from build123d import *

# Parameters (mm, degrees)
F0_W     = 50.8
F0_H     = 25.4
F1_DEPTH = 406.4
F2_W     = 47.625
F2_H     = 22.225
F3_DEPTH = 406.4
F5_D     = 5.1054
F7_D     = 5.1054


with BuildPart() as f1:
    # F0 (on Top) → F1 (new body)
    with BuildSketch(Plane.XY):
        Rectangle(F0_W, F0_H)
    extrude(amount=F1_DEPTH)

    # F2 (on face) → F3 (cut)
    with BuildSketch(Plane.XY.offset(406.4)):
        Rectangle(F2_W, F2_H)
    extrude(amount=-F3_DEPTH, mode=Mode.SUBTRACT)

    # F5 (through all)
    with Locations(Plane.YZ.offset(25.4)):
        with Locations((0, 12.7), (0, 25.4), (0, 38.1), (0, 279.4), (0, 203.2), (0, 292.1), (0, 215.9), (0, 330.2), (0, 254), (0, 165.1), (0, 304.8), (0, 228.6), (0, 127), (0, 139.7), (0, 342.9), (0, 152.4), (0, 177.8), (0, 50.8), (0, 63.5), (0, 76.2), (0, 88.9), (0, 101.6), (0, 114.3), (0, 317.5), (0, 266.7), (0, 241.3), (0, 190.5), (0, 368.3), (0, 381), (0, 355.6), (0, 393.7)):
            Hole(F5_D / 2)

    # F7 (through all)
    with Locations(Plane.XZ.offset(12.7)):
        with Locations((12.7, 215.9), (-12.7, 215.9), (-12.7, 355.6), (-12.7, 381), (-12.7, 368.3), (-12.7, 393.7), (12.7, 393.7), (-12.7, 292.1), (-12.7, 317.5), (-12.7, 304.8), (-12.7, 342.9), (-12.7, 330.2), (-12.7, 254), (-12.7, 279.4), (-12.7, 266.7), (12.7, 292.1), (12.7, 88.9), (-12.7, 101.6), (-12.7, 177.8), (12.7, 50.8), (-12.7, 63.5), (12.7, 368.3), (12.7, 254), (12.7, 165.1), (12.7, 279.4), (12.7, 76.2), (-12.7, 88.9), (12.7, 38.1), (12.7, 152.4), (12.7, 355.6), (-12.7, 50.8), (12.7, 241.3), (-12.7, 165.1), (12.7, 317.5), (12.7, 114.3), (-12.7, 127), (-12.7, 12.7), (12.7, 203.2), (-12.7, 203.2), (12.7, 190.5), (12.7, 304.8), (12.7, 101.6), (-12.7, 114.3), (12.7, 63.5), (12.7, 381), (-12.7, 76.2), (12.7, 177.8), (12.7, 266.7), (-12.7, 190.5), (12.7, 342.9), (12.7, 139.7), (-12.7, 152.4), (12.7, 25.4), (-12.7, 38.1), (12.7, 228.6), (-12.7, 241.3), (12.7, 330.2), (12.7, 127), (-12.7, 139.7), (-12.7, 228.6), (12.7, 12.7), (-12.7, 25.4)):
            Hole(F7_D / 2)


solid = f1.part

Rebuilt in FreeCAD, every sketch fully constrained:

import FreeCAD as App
import Part
import Sketcher
from FreeCAD import Vector
Q = App.Units.Quantity

doc = App.newDocument("Part")
body = doc.addObject("PartDesign::Body", "Body")

# Sketch on XY plane
sketch1 = doc.addObject("Sketcher::SketchObject", "Sketch")
body.addObject(sketch1)
sketch1.AttachmentSupport = (doc.XY_Plane, [""])
sketch1.MapMode = "FlatFace"
sketch1.addGeometry(Part.LineSegment(Vector(-25.4, 12.7, 0), Vector(-25.4, -12.7, 0)), False)
sketch1.addGeometry(Part.LineSegment(Vector(-25.4, -12.7, 0), Vector(25.4, -12.7, 0)), False)
sketch1.addGeometry(Part.LineSegment(Vector(25.4, -12.7, 0), Vector(25.4, 12.7, 0)), False)
sketch1.addGeometry(Part.LineSegment(Vector(25.4, 12.7, 0), Vector(-25.4, 12.7, 0)), False)
sketch1.addConstraint(Sketcher.Constraint("Coincident", 0, 2, 1, 1))
sketch1.addConstraint(Sketcher.Constraint("Coincident", 1, 2, 2, 1))
sketch1.addConstraint(Sketcher.Constraint("Coincident", 2, 2, 3, 1))
sketch1.addConstraint(Sketcher.Constraint("Coincident", 3, 2, 0, 1))
sketch1.addConstraint(Sketcher.Constraint("Vertical", 0))
sketch1.addConstraint(Sketcher.Constraint("Horizontal", 1))
sketch1.addConstraint(Sketcher.Constraint("Vertical", 2))
sketch1.addConstraint(Sketcher.Constraint("Horizontal", 3))
sketch1.addConstraint(Sketcher.Constraint("Symmetric", 0, 2, 2, 2, -1, 1))
sketch1.addConstraint(Sketcher.Constraint("DistanceX", 1, 1, 1, 2, Q("2 in")))
sketch1.addConstraint(Sketcher.Constraint("DistanceY", 0, 2, 0, 1, Q("1 in")))
pad1 = doc.addObject("PartDesign::Pad", "Pad")
body.addObject(pad1)
pad1.Profile = sketch1
pad1.Length = Q("16 in")

# Sketch on XY plane
sketch2 = doc.addObject("Sketcher::SketchObject", "Sketch001")
body.addObject(sketch2)
sketch2.AttachmentSupport = (doc.XY_Plane, [""])
sketch2.MapMode = "FlatFace"
sketch2.AttachmentOffset = App.Placement(Vector(0, 0, 16 * 25.4), App.Rotation())
sketch2.addGeometry(Part.LineSegment(Vector(-23.8125, 11.1125, 0), Vector(-23.8125, -11.1125, 0)), False)
sketch2.addGeometry(Part.LineSegment(Vector(-23.8125, -11.1125, 0), Vector(23.8125, -11.1125, 0)), False)
sketch2.addGeometry(Part.LineSegment(Vector(23.8125, -11.1125, 0), Vector(23.8125, 11.1125, 0)), False)
sketch2.addGeometry(Part.LineSegment(Vector(23.8125, 11.1125, 0), Vector(-23.8125, 11.1125, 0)), False)
sketch2.addConstraint(Sketcher.Constraint("Coincident", 0, 2, 1, 1))
sketch2.addConstraint(Sketcher.Constraint("Coincident", 1, 2, 2, 1))
sketch2.addConstraint(Sketcher.Constraint("Coincident", 2, 2, 3, 1))
sketch2.addConstraint(Sketcher.Constraint("Coincident", 3, 2, 0, 1))
sketch2.addConstraint(Sketcher.Constraint("Vertical", 0))
sketch2.addConstraint(Sketcher.Constraint("Horizontal", 1))
sketch2.addConstraint(Sketcher.Constraint("Vertical", 2))
sketch2.addConstraint(Sketcher.Constraint("Horizontal", 3))
sketch2.addConstraint(Sketcher.Constraint("Symmetric", 0, 2, 2, 2, -1, 1))
sketch2.addConstraint(Sketcher.Constraint("DistanceX", 1, 1, 1, 2, Q("1.875 in")))
sketch2.addConstraint(Sketcher.Constraint("DistanceY", 0, 2, 0, 1, Q("0.875 in")))
pocket1 = doc.addObject("PartDesign::Pocket", "Pocket")
body.addObject(pocket1)
pocket1.Profile = sketch2
pocket1.Length = Q("16 in")

# Sketch on YZ plane
sketch3 = doc.addObject("Sketcher::SketchObject", "Sketch002")
body.addObject(sketch3)
sketch3.AttachmentSupport = (doc.YZ_Plane, [""])
sketch3.MapMode = "FlatFace"
sketch3.AttachmentOffset = App.Placement(Vector(0, 0, 1 * 25.4), App.Rotation())
sketch3.addGeometry(Part.Circle(Vector(0, 12.7, 0), Vector(0, 0, 1), 2.5527), False)
sketch3.addGeometry(Part.Circle(Vector(0, 25.4, 0), Vector(0, 0, 1), 2.5527), False)
sketch3.addGeometry(Part.Circle(Vector(0, 38.1, 0), Vector(0, 0, 1), 2.5527), False)
sketch3.addGeometry(Part.Circle(Vector(0, 279.4, 0), Vector(0, 0, 1), 2.5527), False)
sketch3.addGeometry(Part.Circle(Vector(0, 203.2, 0), Vector(0, 0, 1), 2.5527), False)
sketch3.addGeometry(Part.Circle(Vector(0, 292.1, 0), Vector(0, 0, 1), 2.5527), False)
sketch3.addGeometry(Part.Circle(Vector(0, 215.9, 0), Vector(0, 0, 1), 2.5527), False)
sketch3.addGeometry(Part.Circle(Vector(0, 330.2, 0), Vector(0, 0, 1), 2.5527), False)
sketch3.addGeometry(Part.Circle(Vector(0, 254, 0), Vector(0, 0, 1), 2.5527), False)
sketch3.addGeometry(Part.Circle(Vector(0, 165.1, 0), Vector(0, 0, 1), 2.5527), False)
sketch3.addGeometry(Part.Circle(Vector(0, 304.8, 0), Vector(0, 0, 1), 2.5527), False)
sketch3.addGeometry(Part.Circle(Vector(0, 228.6, 0), Vector(0, 0, 1), 2.5527), False)
sketch3.addGeometry(Part.Circle(Vector(0, 127, 0), Vector(0, 0, 1), 2.5527), False)
sketch3.addGeometry(Part.Circle(Vector(0, 139.7, 0), Vector(0, 0, 1), 2.5527), False)
sketch3.addGeometry(Part.Circle(Vector(0, 342.9, 0), Vector(0, 0, 1), 2.5527), False)
sketch3.addGeometry(Part.Circle(Vector(0, 152.4, 0), Vector(0, 0, 1), 2.5527), False)
sketch3.addGeometry(Part.Circle(Vector(0, 177.8, 0), Vector(0, 0, 1), 2.5527), False)
sketch3.addGeometry(Part.Circle(Vector(0, 50.8, 0), Vector(0, 0, 1), 2.5527), False)
sketch3.addGeometry(Part.Circle(Vector(0, 63.5, 0), Vector(0, 0, 1), 2.5527), False)
sketch3.addGeometry(Part.Circle(Vector(0, 76.2, 0), Vector(0, 0, 1), 2.5527), False)
sketch3.addGeometry(Part.Circle(Vector(0, 88.9, 0), Vector(0, 0, 1), 2.5527), False)
sketch3.addGeometry(Part.Circle(Vector(0, 101.6, 0), Vector(0, 0, 1), 2.5527), False)
sketch3.addGeometry(Part.Circle(Vector(0, 114.3, 0), Vector(0, 0, 1), 2.5527), False)
sketch3.addGeometry(Part.Circle(Vector(0, 317.5, 0), Vector(0, 0, 1), 2.5527), False)
sketch3.addGeometry(Part.Circle(Vector(0, 266.7, 0), Vector(0, 0, 1), 2.5527), False)
sketch3.addGeometry(Part.Circle(Vector(0, 241.3, 0), Vector(0, 0, 1), 2.5527), False)
sketch3.addGeometry(Part.Circle(Vector(0, 190.5, 0), Vector(0, 0, 1), 2.5527), False)
sketch3.addGeometry(Part.Circle(Vector(0, 368.3, 0), Vector(0, 0, 1), 2.5527), False)
sketch3.addGeometry(Part.Circle(Vector(0, 381, 0), Vector(0, 0, 1), 2.5527), False)
sketch3.addGeometry(Part.Circle(Vector(0, 355.6, 0), Vector(0, 0, 1), 2.5527), False)
sketch3.addGeometry(Part.Circle(Vector(0, 393.7, 0), Vector(0, 0, 1), 2.5527), False)
sketch3.addConstraint(Sketcher.Constraint("Equal", 0, 1))
sketch3.addConstraint(Sketcher.Constraint("Equal", 1, 2))
sketch3.addConstraint(Sketcher.Constraint("Equal", 2, 3))
sketch3.addConstraint(Sketcher.Constraint("Equal", 3, 4))
sketch3.addConstraint(Sketcher.Constraint("Equal", 4, 5))
sketch3.addConstraint(Sketcher.Constraint("Equal", 5, 6))
sketch3.addConstraint(Sketcher.Constraint("Equal", 6, 7))
sketch3.addConstraint(Sketcher.Constraint("Equal", 7, 8))
sketch3.addConstraint(Sketcher.Constraint("Equal", 8, 9))
sketch3.addConstraint(Sketcher.Constraint("Equal", 9, 10))
sketch3.addConstraint(Sketcher.Constraint("Equal", 10, 11))
sketch3.addConstraint(Sketcher.Constraint("Equal", 11, 12))
sketch3.addConstraint(Sketcher.Constraint("Equal", 12, 13))
sketch3.addConstraint(Sketcher.Constraint("Equal", 13, 14))
sketch3.addConstraint(Sketcher.Constraint("Equal", 14, 15))
sketch3.addConstraint(Sketcher.Constraint("Equal", 15, 16))
sketch3.addConstraint(Sketcher.Constraint("Equal", 16, 17))
sketch3.addConstraint(Sketcher.Constraint("Equal", 17, 18))
sketch3.addConstraint(Sketcher.Constraint("Equal", 18, 19))
sketch3.addConstraint(Sketcher.Constraint("Equal", 19, 20))
sketch3.addConstraint(Sketcher.Constraint("Equal", 20, 21))
sketch3.addConstraint(Sketcher.Constraint("Equal", 21, 22))
sketch3.addConstraint(Sketcher.Constraint("Equal", 22, 23))
sketch3.addConstraint(Sketcher.Constraint("Equal", 23, 24))
sketch3.addConstraint(Sketcher.Constraint("Equal", 24, 25))
sketch3.addConstraint(Sketcher.Constraint("Equal", 25, 26))
sketch3.addConstraint(Sketcher.Constraint("Equal", 26, 27))
sketch3.addConstraint(Sketcher.Constraint("Equal", 27, 28))
sketch3.addConstraint(Sketcher.Constraint("Equal", 28, 29))
sketch3.addConstraint(Sketcher.Constraint("Equal", 29, 30))
sketch3.addConstraint(Sketcher.Constraint("PointOnObject", 0, 3, -2))
sketch3.addConstraint(Sketcher.Constraint("PointOnObject", 1, 3, -2))
sketch3.addConstraint(Sketcher.Constraint("PointOnObject", 2, 3, -2))
sketch3.addConstraint(Sketcher.Constraint("PointOnObject", 3, 3, -2))
sketch3.addConstraint(Sketcher.Constraint("PointOnObject", 4, 3, -2))
sketch3.addConstraint(Sketcher.Constraint("PointOnObject", 5, 3, -2))
sketch3.addConstraint(Sketcher.Constraint("PointOnObject", 6, 3, -2))
sketch3.addConstraint(Sketcher.Constraint("PointOnObject", 7, 3, -2))
sketch3.addConstraint(Sketcher.Constraint("PointOnObject", 8, 3, -2))
sketch3.addConstraint(Sketcher.Constraint("PointOnObject", 9, 3, -2))
sketch3.addConstraint(Sketcher.Constraint("PointOnObject", 10, 3, -2))
sketch3.addConstraint(Sketcher.Constraint("PointOnObject", 11, 3, -2))
sketch3.addConstraint(Sketcher.Constraint("PointOnObject", 12, 3, -2))
sketch3.addConstraint(Sketcher.Constraint("PointOnObject", 13, 3, -2))
sketch3.addConstraint(Sketcher.Constraint("PointOnObject", 14, 3, -2))
sketch3.addConstraint(Sketcher.Constraint("PointOnObject", 15, 3, -2))
sketch3.addConstraint(Sketcher.Constraint("PointOnObject", 16, 3, -2))
sketch3.addConstraint(Sketcher.Constraint("PointOnObject", 17, 3, -2))
sketch3.addConstraint(Sketcher.Constraint("PointOnObject", 18, 3, -2))
sketch3.addConstraint(Sketcher.Constraint("PointOnObject", 19, 3, -2))
sketch3.addConstraint(Sketcher.Constraint("PointOnObject", 20, 3, -2))
sketch3.addConstraint(Sketcher.Constraint("PointOnObject", 21, 3, -2))
sketch3.addConstraint(Sketcher.Constraint("PointOnObject", 22, 3, -2))
sketch3.addConstraint(Sketcher.Constraint("PointOnObject", 23, 3, -2))
sketch3.addConstraint(Sketcher.Constraint("PointOnObject", 24, 3, -2))
sketch3.addConstraint(Sketcher.Constraint("PointOnObject", 25, 3, -2))
sketch3.addConstraint(Sketcher.Constraint("PointOnObject", 26, 3, -2))
sketch3.addConstraint(Sketcher.Constraint("PointOnObject", 27, 3, -2))
sketch3.addConstraint(Sketcher.Constraint("PointOnObject", 28, 3, -2))
sketch3.addConstraint(Sketcher.Constraint("PointOnObject", 29, 3, -2))
sketch3.addConstraint(Sketcher.Constraint("PointOnObject", 30, 3, -2))
sketch3.addConstraint(Sketcher.Constraint("Diameter", 0, Q("0.201 in")))
sketch3.addConstraint(Sketcher.Constraint("DistanceY", -1, 1, 1, 3, Q("1 in")))
sketch3.addConstraint(Sketcher.Constraint("DistanceY", -1, 1, 3, 3, Q("11 in")))
sketch3.addConstraint(Sketcher.Constraint("DistanceY", -1, 1, 4, 3, Q("8 in")))
sketch3.addConstraint(Sketcher.Constraint("DistanceY", -1, 1, 7, 3, Q("13 in")))
sketch3.addConstraint(Sketcher.Constraint("DistanceY", -1, 1, 8, 3, Q("10 in")))
sketch3.addConstraint(Sketcher.Constraint("DistanceY", -1, 1, 10, 3, Q("12 in")))
sketch3.addConstraint(Sketcher.Constraint("DistanceY", -1, 1, 11, 3, Q("9 in")))
sketch3.addConstraint(Sketcher.Constraint("DistanceY", -1, 1, 12, 3, Q("5 in")))
sketch3.addConstraint(Sketcher.Constraint("DistanceY", -1, 1, 15, 3, Q("6 in")))
sketch3.addConstraint(Sketcher.Constraint("DistanceY", -1, 1, 16, 3, Q("7 in")))
sketch3.addConstraint(Sketcher.Constraint("DistanceY", -1, 1, 17, 3, Q("2 in")))
sketch3.addConstraint(Sketcher.Constraint("DistanceY", -1, 1, 19, 3, Q("3 in")))
sketch3.addConstraint(Sketcher.Constraint("DistanceY", -1, 1, 21, 3, Q("4 in")))
sketch3.addConstraint(Sketcher.Constraint("DistanceY", -1, 1, 28, 3, Q("15 in")))
sketch3.addConstraint(Sketcher.Constraint("DistanceY", -1, 1, 29, 3, Q("14 in")))
sketch3.addConstraint(Sketcher.Constraint("DistanceY", 0, 3, 2, 3, Q("1 in")))
sketch3.addConstraint(Sketcher.Constraint("DistanceY", 2, 3, 5, 3, Q("10 in")))
sketch3.addConstraint(Sketcher.Constraint("DistanceY", 6, 3, 5, 3, Q("3 in")))
sketch3.addConstraint(Sketcher.Constraint("DistanceY", 9, 3, 6, 3, Q("2 in")))
sketch3.addConstraint(Sketcher.Constraint("DistanceY", 13, 3, 9, 3, Q("1 in")))
sketch3.addConstraint(Sketcher.Constraint("DistanceY", 5, 3, 14, 3, Q("2 in")))
sketch3.addConstraint(Sketcher.Constraint("DistanceY", 2, 3, 18, 3, Q("1 in")))
sketch3.addConstraint(Sketcher.Constraint("DistanceY", 18, 3, 20, 3, Q("1 in")))
sketch3.addConstraint(Sketcher.Constraint("DistanceY", 22, 3, 13, 3, Q("1 in")))
sketch3.addConstraint(Sketcher.Constraint("DistanceY", 5, 3, 23, 3, Q("1 in")))
sketch3.addConstraint(Sketcher.Constraint("DistanceY", 24, 3, 5, 3, Q("1 in")))
sketch3.addConstraint(Sketcher.Constraint("DistanceY", 25, 3, 24, 3, Q("1 in")))
sketch3.addConstraint(Sketcher.Constraint("DistanceY", 26, 3, 6, 3, Q("1 in")))
sketch3.addConstraint(Sketcher.Constraint("DistanceY", 14, 3, 27, 3, Q("1 in")))
sketch3.addConstraint(Sketcher.Constraint("DistanceY", 27, 3, 30, 3, Q("1 in")))
sketch3.addConstraint(Sketcher.Constraint("DistanceY", -1, 1, 0, 3, Q("0.5 in")))
doc.recompute()
hole = doc.addObject("PartDesign::Hole", "Hole")
body.addObject(hole)
hole.Profile = sketch3
hole.ThreadType = "None"
hole.Diameter = Q("0.201 in")
hole.DepthType = "ThroughAll"

# Sketch on XZ plane
sketch4 = doc.addObject("Sketcher::SketchObject", "Sketch003")
body.addObject(sketch4)
sketch4.AttachmentSupport = (doc.XZ_Plane, [""])
sketch4.MapMode = "FlatFace"
sketch4.AttachmentOffset = App.Placement(Vector(0, 0, 0.5 * 25.4), App.Rotation())
sketch4.addGeometry(Part.Circle(Vector(12.7, 215.9, 0), Vector(0, 0, 1), 2.5527), False)
sketch4.addGeometry(Part.Circle(Vector(-12.7, 215.9, 0), Vector(0, 0, 1), 2.5527), False)
sketch4.addGeometry(Part.Circle(Vector(-12.7, 355.6, 0), Vector(0, 0, 1), 2.5527), False)
sketch4.addGeometry(Part.Circle(Vector(-12.7, 381, 0), Vector(0, 0, 1), 2.5527), False)
sketch4.addGeometry(Part.Circle(Vector(-12.7, 368.3, 0), Vector(0, 0, 1), 2.5527), False)
sketch4.addGeometry(Part.Circle(Vector(-12.7, 393.7, 0), Vector(0, 0, 1), 2.5527), False)
sketch4.addGeometry(Part.Circle(Vector(12.7, 393.7, 0), Vector(0, 0, 1), 2.5527), False)
sketch4.addGeometry(Part.Circle(Vector(-12.7, 292.1, 0), Vector(0, 0, 1), 2.5527), False)
sketch4.addGeometry(Part.Circle(Vector(-12.7, 317.5, 0), Vector(0, 0, 1), 2.5527), False)
sketch4.addGeometry(Part.Circle(Vector(-12.7, 304.8, 0), Vector(0, 0, 1), 2.5527), False)
sketch4.addGeometry(Part.Circle(Vector(-12.7, 342.9, 0), Vector(0, 0, 1), 2.5527), False)
sketch4.addGeometry(Part.Circle(Vector(-12.7, 330.2, 0), Vector(0, 0, 1), 2.5527), False)
sketch4.addGeometry(Part.Circle(Vector(-12.7, 254, 0), Vector(0, 0, 1), 2.5527), False)
sketch4.addGeometry(Part.Circle(Vector(-12.7, 279.4, 0), Vector(0, 0, 1), 2.5527), False)
sketch4.addGeometry(Part.Circle(Vector(-12.7, 266.7, 0), Vector(0, 0, 1), 2.5527), False)
sketch4.addGeometry(Part.Circle(Vector(12.7, 292.1, 0), Vector(0, 0, 1), 2.5527), False)
sketch4.addGeometry(Part.Circle(Vector(12.7, 88.9, 0), Vector(0, 0, 1), 2.5527), False)
sketch4.addGeometry(Part.Circle(Vector(-12.7, 101.6, 0), Vector(0, 0, 1), 2.5527), False)
sketch4.addGeometry(Part.Circle(Vector(-12.7, 177.8, 0), Vector(0, 0, 1), 2.5527), False)
sketch4.addGeometry(Part.Circle(Vector(12.7, 50.8, 0), Vector(0, 0, 1), 2.5527), False)
sketch4.addGeometry(Part.Circle(Vector(-12.7, 63.5, 0), Vector(0, 0, 1), 2.5527), False)
sketch4.addGeometry(Part.Circle(Vector(12.7, 368.3, 0), Vector(0, 0, 1), 2.5527), False)
sketch4.addGeometry(Part.Circle(Vector(12.7, 254, 0), Vector(0, 0, 1), 2.5527), False)
sketch4.addGeometry(Part.Circle(Vector(12.7, 165.1, 0), Vector(0, 0, 1), 2.5527), False)
sketch4.addGeometry(Part.Circle(Vector(12.7, 279.4, 0), Vector(0, 0, 1), 2.5527), False)
sketch4.addGeometry(Part.Circle(Vector(12.7, 76.2, 0), Vector(0, 0, 1), 2.5527), False)
sketch4.addGeometry(Part.Circle(Vector(-12.7, 88.9, 0), Vector(0, 0, 1), 2.5527), False)
sketch4.addGeometry(Part.Circle(Vector(12.7, 38.1, 0), Vector(0, 0, 1), 2.5527), False)
sketch4.addGeometry(Part.Circle(Vector(12.7, 152.4, 0), Vector(0, 0, 1), 2.5527), False)
sketch4.addGeometry(Part.Circle(Vector(12.7, 355.6, 0), Vector(0, 0, 1), 2.5527), False)
sketch4.addGeometry(Part.Circle(Vector(-12.7, 50.8, 0), Vector(0, 0, 1), 2.5527), False)
sketch4.addGeometry(Part.Circle(Vector(12.7, 241.3, 0), Vector(0, 0, 1), 2.5527), False)
sketch4.addGeometry(Part.Circle(Vector(-12.7, 165.1, 0), Vector(0, 0, 1), 2.5527), False)
sketch4.addGeometry(Part.Circle(Vector(12.7, 317.5, 0), Vector(0, 0, 1), 2.5527), False)
sketch4.addGeometry(Part.Circle(Vector(12.7, 114.3, 0), Vector(0, 0, 1), 2.5527), False)
sketch4.addGeometry(Part.Circle(Vector(-12.7, 127, 0), Vector(0, 0, 1), 2.5527), False)
sketch4.addGeometry(Part.Circle(Vector(-12.7, 12.7, 0), Vector(0, 0, 1), 2.5527), False)
sketch4.addGeometry(Part.Circle(Vector(12.7, 203.2, 0), Vector(0, 0, 1), 2.5527), False)
sketch4.addGeometry(Part.Circle(Vector(-12.7, 203.2, 0), Vector(0, 0, 1), 2.5527), False)
sketch4.addGeometry(Part.Circle(Vector(12.7, 190.5, 0), Vector(0, 0, 1), 2.5527), False)
sketch4.addGeometry(Part.Circle(Vector(12.7, 304.8, 0), Vector(0, 0, 1), 2.5527), False)
sketch4.addGeometry(Part.Circle(Vector(12.7, 101.6, 0), Vector(0, 0, 1), 2.5527), False)
sketch4.addGeometry(Part.Circle(Vector(-12.7, 114.3, 0), Vector(0, 0, 1), 2.5527), False)
sketch4.addGeometry(Part.Circle(Vector(12.7, 63.5, 0), Vector(0, 0, 1), 2.5527), False)
sketch4.addGeometry(Part.Circle(Vector(12.7, 381, 0), Vector(0, 0, 1), 2.5527), False)
sketch4.addGeometry(Part.Circle(Vector(-12.7, 76.2, 0), Vector(0, 0, 1), 2.5527), False)
sketch4.addGeometry(Part.Circle(Vector(12.7, 177.8, 0), Vector(0, 0, 1), 2.5527), False)
sketch4.addGeometry(Part.Circle(Vector(12.7, 266.7, 0), Vector(0, 0, 1), 2.5527), False)
sketch4.addGeometry(Part.Circle(Vector(-12.7, 190.5, 0), Vector(0, 0, 1), 2.5527), False)
sketch4.addGeometry(Part.Circle(Vector(12.7, 342.9, 0), Vector(0, 0, 1), 2.5527), False)
sketch4.addGeometry(Part.Circle(Vector(12.7, 139.7, 0), Vector(0, 0, 1), 2.5527), False)
sketch4.addGeometry(Part.Circle(Vector(-12.7, 152.4, 0), Vector(0, 0, 1), 2.5527), False)
sketch4.addGeometry(Part.Circle(Vector(12.7, 25.4, 0), Vector(0, 0, 1), 2.5527), False)
sketch4.addGeometry(Part.Circle(Vector(-12.7, 38.1, 0), Vector(0, 0, 1), 2.5527), False)
sketch4.addGeometry(Part.Circle(Vector(12.7, 228.6, 0), Vector(0, 0, 1), 2.5527), False)
sketch4.addGeometry(Part.Circle(Vector(-12.7, 241.3, 0), Vector(0, 0, 1), 2.5527), False)
sketch4.addGeometry(Part.Circle(Vector(12.7, 330.2, 0), Vector(0, 0, 1), 2.5527), False)
sketch4.addGeometry(Part.Circle(Vector(12.7, 127, 0), Vector(0, 0, 1), 2.5527), False)
sketch4.addGeometry(Part.Circle(Vector(-12.7, 139.7, 0), Vector(0, 0, 1), 2.5527), False)
sketch4.addGeometry(Part.Circle(Vector(-12.7, 228.6, 0), Vector(0, 0, 1), 2.5527), False)
sketch4.addGeometry(Part.Circle(Vector(12.7, 12.7, 0), Vector(0, 0, 1), 2.5527), False)
sketch4.addGeometry(Part.Circle(Vector(-12.7, 25.4, 0), Vector(0, 0, 1), 2.5527), False)
sketch4.addConstraint(Sketcher.Constraint("Equal", 0, 1))
sketch4.addConstraint(Sketcher.Constraint("Equal", 1, 2))
sketch4.addConstraint(Sketcher.Constraint("Equal", 2, 3))
sketch4.addConstraint(Sketcher.Constraint("Equal", 3, 4))
sketch4.addConstraint(Sketcher.Constraint("Equal", 4, 5))
sketch4.addConstraint(Sketcher.Constraint("Equal", 5, 6))
sketch4.addConstraint(Sketcher.Constraint("Equal", 6, 7))
sketch4.addConstraint(Sketcher.Constraint("Equal", 7, 8))
sketch4.addConstraint(Sketcher.Constraint("Equal", 8, 9))
sketch4.addConstraint(Sketcher.Constraint("Equal", 9, 10))
sketch4.addConstraint(Sketcher.Constraint("Equal", 10, 11))
sketch4.addConstraint(Sketcher.Constraint("Equal", 11, 12))
sketch4.addConstraint(Sketcher.Constraint("Equal", 12, 13))
sketch4.addConstraint(Sketcher.Constraint("Equal", 13, 14))
sketch4.addConstraint(Sketcher.Constraint("Equal", 14, 15))
sketch4.addConstraint(Sketcher.Constraint("Equal", 15, 16))
sketch4.addConstraint(Sketcher.Constraint("Equal", 16, 17))
sketch4.addConstraint(Sketcher.Constraint("Equal", 17, 18))
sketch4.addConstraint(Sketcher.Constraint("Equal", 18, 19))
sketch4.addConstraint(Sketcher.Constraint("Equal", 19, 20))
sketch4.addConstraint(Sketcher.Constraint("Equal", 20, 21))
sketch4.addConstraint(Sketcher.Constraint("Equal", 21, 22))
sketch4.addConstraint(Sketcher.Constraint("Equal", 22, 23))
sketch4.addConstraint(Sketcher.Constraint("Equal", 23, 24))
sketch4.addConstraint(Sketcher.Constraint("Equal", 24, 25))
sketch4.addConstraint(Sketcher.Constraint("Equal", 25, 26))
sketch4.addConstraint(Sketcher.Constraint("Equal", 26, 27))
sketch4.addConstraint(Sketcher.Constraint("Equal", 27, 28))
sketch4.addConstraint(Sketcher.Constraint("Equal", 28, 29))
sketch4.addConstraint(Sketcher.Constraint("Equal", 29, 30))
sketch4.addConstraint(Sketcher.Constraint("Equal", 30, 31))
sketch4.addConstraint(Sketcher.Constraint("Equal", 31, 32))
sketch4.addConstraint(Sketcher.Constraint("Equal", 32, 33))
sketch4.addConstraint(Sketcher.Constraint("Equal", 33, 34))
sketch4.addConstraint(Sketcher.Constraint("Equal", 34, 35))
sketch4.addConstraint(Sketcher.Constraint("Equal", 35, 36))
sketch4.addConstraint(Sketcher.Constraint("Equal", 36, 37))
sketch4.addConstraint(Sketcher.Constraint("Equal", 37, 38))
sketch4.addConstraint(Sketcher.Constraint("Equal", 38, 39))
sketch4.addConstraint(Sketcher.Constraint("Equal", 39, 40))
sketch4.addConstraint(Sketcher.Constraint("Equal", 40, 41))
sketch4.addConstraint(Sketcher.Constraint("Equal", 41, 42))
sketch4.addConstraint(Sketcher.Constraint("Equal", 42, 43))
sketch4.addConstraint(Sketcher.Constraint("Equal", 43, 44))
sketch4.addConstraint(Sketcher.Constraint("Equal", 44, 45))
sketch4.addConstraint(Sketcher.Constraint("Equal", 45, 46))
sketch4.addConstraint(Sketcher.Constraint("Equal", 46, 47))
sketch4.addConstraint(Sketcher.Constraint("Equal", 47, 48))
sketch4.addConstraint(Sketcher.Constraint("Equal", 48, 49))
sketch4.addConstraint(Sketcher.Constraint("Equal", 49, 50))
sketch4.addConstraint(Sketcher.Constraint("Equal", 50, 51))
sketch4.addConstraint(Sketcher.Constraint("Equal", 51, 52))
sketch4.addConstraint(Sketcher.Constraint("Equal", 52, 53))
sketch4.addConstraint(Sketcher.Constraint("Equal", 53, 54))
sketch4.addConstraint(Sketcher.Constraint("Equal", 54, 55))
sketch4.addConstraint(Sketcher.Constraint("Equal", 55, 56))
sketch4.addConstraint(Sketcher.Constraint("Equal", 56, 57))
sketch4.addConstraint(Sketcher.Constraint("Equal", 57, 58))
sketch4.addConstraint(Sketcher.Constraint("Equal", 58, 59))
sketch4.addConstraint(Sketcher.Constraint("Equal", 59, 60))
sketch4.addConstraint(Sketcher.Constraint("Equal", 60, 61))
sketch4.addConstraint(Sketcher.Constraint("Symmetric", 0, 3, 1, 3, -2))
sketch4.addConstraint(Sketcher.Constraint("Symmetric", 5, 3, 6, 3, -2))
sketch4.addConstraint(Sketcher.Constraint("Symmetric", 7, 3, 15, 3, -2))
sketch4.addConstraint(Sketcher.Constraint("Symmetric", 4, 3, 21, 3, -2))
sketch4.addConstraint(Sketcher.Constraint("Symmetric", 12, 3, 22, 3, -2))
sketch4.addConstraint(Sketcher.Constraint("Symmetric", 13, 3, 24, 3, -2))
sketch4.addConstraint(Sketcher.Constraint("Symmetric", 16, 3, 26, 3, -2))
sketch4.addConstraint(Sketcher.Constraint("Symmetric", 2, 3, 29, 3, -2))
sketch4.addConstraint(Sketcher.Constraint("Symmetric", 19, 3, 30, 3, -2))
sketch4.addConstraint(Sketcher.Constraint("Symmetric", 23, 3, 32, 3, -2))
sketch4.addConstraint(Sketcher.Constraint("Symmetric", 8, 3, 33, 3, -2))
sketch4.addConstraint(Sketcher.Constraint("Symmetric", 37, 3, 38, 3, -2))
sketch4.addConstraint(Sketcher.Constraint("Symmetric", 9, 3, 40, 3, -2))
sketch4.addConstraint(Sketcher.Constraint("Symmetric", 17, 3, 41, 3, -2))
sketch4.addConstraint(Sketcher.Constraint("Symmetric", 34, 3, 42, 3, -2))
sketch4.addConstraint(Sketcher.Constraint("Symmetric", 20, 3, 43, 3, -2))
sketch4.addConstraint(Sketcher.Constraint("Symmetric", 3, 3, 44, 3, -2))
sketch4.addConstraint(Sketcher.Constraint("Symmetric", 25, 3, 45, 3, -2))
sketch4.addConstraint(Sketcher.Constraint("Symmetric", 18, 3, 46, 3, -2))
sketch4.addConstraint(Sketcher.Constraint("Symmetric", 14, 3, 47, 3, -2))
sketch4.addConstraint(Sketcher.Constraint("Symmetric", 39, 3, 48, 3, -2))
sketch4.addConstraint(Sketcher.Constraint("Symmetric", 10, 3, 49, 3, -2))
sketch4.addConstraint(Sketcher.Constraint("Symmetric", 28, 3, 51, 3, -2))
sketch4.addConstraint(Sketcher.Constraint("Symmetric", 27, 3, 53, 3, -2))
sketch4.addConstraint(Sketcher.Constraint("Symmetric", 31, 3, 55, 3, -2))
sketch4.addConstraint(Sketcher.Constraint("Symmetric", 11, 3, 56, 3, -2))
sketch4.addConstraint(Sketcher.Constraint("Symmetric", 35, 3, 57, 3, -2))
sketch4.addConstraint(Sketcher.Constraint("Symmetric", 50, 3, 58, 3, -2))
sketch4.addConstraint(Sketcher.Constraint("Symmetric", 54, 3, 59, 3, -2))
sketch4.addConstraint(Sketcher.Constraint("Symmetric", 36, 3, 60, 3, -2))
sketch4.addConstraint(Sketcher.Constraint("Symmetric", 52, 3, 61, 3, -2))
sketch4.addConstraint(Sketcher.Constraint("Vertical", 1, 3, 2, 3))
sketch4.addConstraint(Sketcher.Constraint("Vertical", 2, 3, 3, 3))
sketch4.addConstraint(Sketcher.Constraint("Vertical", 3, 3, 4, 3))
sketch4.addConstraint(Sketcher.Constraint("Vertical", 4, 3, 5, 3))
sketch4.addConstraint(Sketcher.Constraint("Vertical", 5, 3, 7, 3))
sketch4.addConstraint(Sketcher.Constraint("Vertical", 7, 3, 8, 3))
sketch4.addConstraint(Sketcher.Constraint("Vertical", 8, 3, 9, 3))
sketch4.addConstraint(Sketcher.Constraint("Vertical", 9, 3, 10, 3))
sketch4.addConstraint(Sketcher.Constraint("Vertical", 10, 3, 11, 3))
sketch4.addConstraint(Sketcher.Constraint("Vertical", 11, 3, 12, 3))
sketch4.addConstraint(Sketcher.Constraint("Vertical", 12, 3, 13, 3))
sketch4.addConstraint(Sketcher.Constraint("Vertical", 13, 3, 14, 3))
sketch4.addConstraint(Sketcher.Constraint("Vertical", 15, 3, 16, 3))
sketch4.addConstraint(Sketcher.Constraint("Vertical", 14, 3, 17, 3))
sketch4.addConstraint(Sketcher.Constraint("Vertical", 17, 3, 18, 3))
sketch4.addConstraint(Sketcher.Constraint("Vertical", 16, 3, 19, 3))
sketch4.addConstraint(Sketcher.Constraint("Vertical", 18, 3, 20, 3))
sketch4.addConstraint(Sketcher.Constraint("Vertical", 22, 3, 23, 3))
sketch4.addConstraint(Sketcher.Constraint("Vertical", 24, 3, 25, 3))
sketch4.addConstraint(Sketcher.Constraint("Vertical", 25, 3, 27, 3))
sketch4.addConstraint(Sketcher.Constraint("Vertical", 27, 3, 28, 3))
sketch4.addConstraint(Sketcher.Constraint("Vertical", 29, 3, 31, 3))
sketch4.addConstraint(Sketcher.Constraint("Vertical", 33, 3, 34, 3))
sketch4.addConstraint(Sketcher.Constraint("Vertical", 32, 3, 35, 3))
sketch4.addConstraint(Sketcher.Constraint("Vertical", 35, 3, 36, 3))
sketch4.addConstraint(Sketcher.Constraint("Vertical", 34, 3, 37, 3))
sketch4.addConstraint(Sketcher.Constraint("Vertical", 37, 3, 39, 3))
sketch4.addConstraint(Sketcher.Constraint("Vertical", 49, 3, 50, 3))
sketch4.addConstraint(Sketcher.Constraint("Vertical", 50, 3, 52, 3))
sketch4.addConstraint(Sketcher.Constraint("Vertical", 52, 3, 54, 3))
sketch4.addConstraint(Sketcher.Constraint("Diameter", 0, Q("0.201 in")))
sketch4.addConstraint(Sketcher.Constraint("DistanceY", -1, 1, 2, 3, Q("14 in")))
sketch4.addConstraint(Sketcher.Constraint("DistanceY", -1, 1, 3, 3, Q("15 in")))
sketch4.addConstraint(Sketcher.Constraint("DistanceY", -1, 1, 9, 3, Q("12 in")))
sketch4.addConstraint(Sketcher.Constraint("DistanceY", -1, 1, 11, 3, Q("13 in")))
sketch4.addConstraint(Sketcher.Constraint("DistanceY", -1, 1, 12, 3, Q("10 in")))
sketch4.addConstraint(Sketcher.Constraint("DistanceY", -1, 1, 13, 3, Q("11 in")))
sketch4.addConstraint(Sketcher.Constraint("DistanceY", -1, 1, 17, 3, Q("4 in")))
sketch4.addConstraint(Sketcher.Constraint("DistanceY", -1, 1, 18, 3, Q("7 in")))
sketch4.addConstraint(Sketcher.Constraint("DistanceY", -1, 1, 19, 3, Q("2 in")))
sketch4.addConstraint(Sketcher.Constraint("DistanceY", -1, 1, 25, 3, Q("3 in")))
sketch4.addConstraint(Sketcher.Constraint("DistanceY", -1, 1, 28, 3, Q("6 in")))
sketch4.addConstraint(Sketcher.Constraint("DistanceY", -1, 1, 35, 3, Q("5 in")))
sketch4.addConstraint(Sketcher.Constraint("DistanceY", -1, 1, 37, 3, Q("8 in")))
sketch4.addConstraint(Sketcher.Constraint("DistanceY", -1, 1, 52, 3, Q("1 in")))
sketch4.addConstraint(Sketcher.Constraint("DistanceY", -1, 1, 54, 3, Q("9 in")))
sketch4.addConstraint(Sketcher.Constraint("DistanceX", -1, 1, 0, 3, Q("0.5 in")))
sketch4.addConstraint(Sketcher.Constraint("DistanceY", -1, 1, 0, 3, Q("8.5 in")))
sketch4.addConstraint(Sketcher.Constraint("DistanceY", -1, 1, 4, 3, Q("14.5 in")))
sketch4.addConstraint(Sketcher.Constraint("DistanceY", -1, 1, 5, 3, Q("15.5 in")))
sketch4.addConstraint(Sketcher.Constraint("DistanceY", -1, 1, 7, 3, Q("11.5 in")))
sketch4.addConstraint(Sketcher.Constraint("DistanceY", -1, 1, 8, 3, Q("12.5 in")))
sketch4.addConstraint(Sketcher.Constraint("DistanceY", -1, 1, 10, 3, Q("13.5 in")))
sketch4.addConstraint(Sketcher.Constraint("DistanceY", -1, 1, 14, 3, Q("10.5 in")))
sketch4.addConstraint(Sketcher.Constraint("DistanceY", -1, 1, 16, 3, Q("3.5 in")))
sketch4.addConstraint(Sketcher.Constraint("DistanceY", -1, 1, 20, 3, Q("2.5 in")))
sketch4.addConstraint(Sketcher.Constraint("DistanceY", -1, 1, 23, 3, Q("6.5 in")))
sketch4.addConstraint(Sketcher.Constraint("DistanceY", -1, 1, 27, 3, Q("1.5 in")))
sketch4.addConstraint(Sketcher.Constraint("DistanceY", -1, 1, 31, 3, Q("9.5 in")))
sketch4.addConstraint(Sketcher.Constraint("DistanceY", -1, 1, 34, 3, Q("4.5 in")))
sketch4.addConstraint(Sketcher.Constraint("DistanceY", -1, 1, 36, 3, Q("0.5 in")))
sketch4.addConstraint(Sketcher.Constraint("DistanceY", -1, 1, 39, 3, Q("7.5 in")))
sketch4.addConstraint(Sketcher.Constraint("DistanceY", -1, 1, 50, 3, Q("5.5 in")))
doc.recompute()
hole2 = doc.addObject("PartDesign::Hole", "Hole001")
body.addObject(hole2)
hole2.Profile = sketch4
hole2.ThreadType = "None"
hole2.Diameter = Q("0.201 in")
hole2.DepthType = "ThroughAll"

doc.recompute()
